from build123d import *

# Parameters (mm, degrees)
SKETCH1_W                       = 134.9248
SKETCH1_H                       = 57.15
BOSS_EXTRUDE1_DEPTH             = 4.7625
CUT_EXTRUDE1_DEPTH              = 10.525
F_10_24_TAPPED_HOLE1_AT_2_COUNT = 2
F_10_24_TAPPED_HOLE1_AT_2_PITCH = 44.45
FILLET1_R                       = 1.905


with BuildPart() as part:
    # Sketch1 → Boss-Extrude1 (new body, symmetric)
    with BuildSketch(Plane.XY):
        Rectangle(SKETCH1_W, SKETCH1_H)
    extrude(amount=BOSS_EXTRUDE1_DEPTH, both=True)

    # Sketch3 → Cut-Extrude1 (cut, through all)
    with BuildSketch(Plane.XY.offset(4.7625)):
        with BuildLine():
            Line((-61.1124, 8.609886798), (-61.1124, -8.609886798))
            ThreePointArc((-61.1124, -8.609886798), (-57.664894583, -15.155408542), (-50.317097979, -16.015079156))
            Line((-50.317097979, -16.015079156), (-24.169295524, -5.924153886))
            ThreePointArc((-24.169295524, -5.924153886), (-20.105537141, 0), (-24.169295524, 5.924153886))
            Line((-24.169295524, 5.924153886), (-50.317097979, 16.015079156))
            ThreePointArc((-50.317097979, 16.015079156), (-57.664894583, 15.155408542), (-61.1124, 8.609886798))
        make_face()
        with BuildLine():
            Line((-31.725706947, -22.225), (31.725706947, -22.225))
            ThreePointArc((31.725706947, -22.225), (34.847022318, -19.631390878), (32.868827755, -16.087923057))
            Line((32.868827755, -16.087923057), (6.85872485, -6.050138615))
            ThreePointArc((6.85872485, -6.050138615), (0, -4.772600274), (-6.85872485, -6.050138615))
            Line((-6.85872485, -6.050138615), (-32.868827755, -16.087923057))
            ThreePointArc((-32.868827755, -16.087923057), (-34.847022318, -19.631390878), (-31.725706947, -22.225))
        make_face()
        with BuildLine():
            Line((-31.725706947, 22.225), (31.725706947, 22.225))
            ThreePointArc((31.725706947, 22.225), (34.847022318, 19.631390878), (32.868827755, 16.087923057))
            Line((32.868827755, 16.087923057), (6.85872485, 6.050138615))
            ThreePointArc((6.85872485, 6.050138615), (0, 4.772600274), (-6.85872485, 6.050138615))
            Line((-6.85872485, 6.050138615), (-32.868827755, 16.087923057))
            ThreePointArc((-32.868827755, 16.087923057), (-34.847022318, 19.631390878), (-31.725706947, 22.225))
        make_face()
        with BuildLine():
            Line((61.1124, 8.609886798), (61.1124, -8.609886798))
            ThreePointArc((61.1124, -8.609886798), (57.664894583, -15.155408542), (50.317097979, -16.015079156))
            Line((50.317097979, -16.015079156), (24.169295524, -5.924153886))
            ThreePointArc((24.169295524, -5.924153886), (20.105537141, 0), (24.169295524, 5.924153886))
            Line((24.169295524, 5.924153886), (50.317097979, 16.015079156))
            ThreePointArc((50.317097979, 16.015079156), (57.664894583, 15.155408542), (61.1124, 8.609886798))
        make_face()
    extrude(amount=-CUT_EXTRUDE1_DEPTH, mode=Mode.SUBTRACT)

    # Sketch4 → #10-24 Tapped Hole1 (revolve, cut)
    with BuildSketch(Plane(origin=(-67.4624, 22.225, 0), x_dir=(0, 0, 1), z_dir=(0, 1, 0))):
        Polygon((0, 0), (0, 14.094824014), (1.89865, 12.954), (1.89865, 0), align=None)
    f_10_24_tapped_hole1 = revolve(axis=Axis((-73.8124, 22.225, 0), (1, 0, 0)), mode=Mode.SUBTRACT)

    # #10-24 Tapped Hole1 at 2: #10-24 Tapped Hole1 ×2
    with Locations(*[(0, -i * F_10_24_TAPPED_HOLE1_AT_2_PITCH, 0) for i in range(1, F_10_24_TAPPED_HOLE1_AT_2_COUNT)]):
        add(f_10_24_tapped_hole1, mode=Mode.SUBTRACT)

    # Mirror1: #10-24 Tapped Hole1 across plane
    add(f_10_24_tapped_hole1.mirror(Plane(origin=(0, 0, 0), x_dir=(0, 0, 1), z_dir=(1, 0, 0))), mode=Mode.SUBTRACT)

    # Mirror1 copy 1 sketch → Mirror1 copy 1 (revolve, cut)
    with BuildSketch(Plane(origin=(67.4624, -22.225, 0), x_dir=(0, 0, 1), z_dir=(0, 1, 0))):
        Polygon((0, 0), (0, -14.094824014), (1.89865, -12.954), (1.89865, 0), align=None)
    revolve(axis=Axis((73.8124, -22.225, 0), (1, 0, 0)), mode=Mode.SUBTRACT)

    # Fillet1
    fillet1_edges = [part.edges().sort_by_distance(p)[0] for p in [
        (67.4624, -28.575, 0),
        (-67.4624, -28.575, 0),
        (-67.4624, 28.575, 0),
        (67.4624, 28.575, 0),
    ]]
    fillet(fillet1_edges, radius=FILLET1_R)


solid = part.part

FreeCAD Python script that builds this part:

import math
import FreeCAD as App
import Part
import Sketcher
from FreeCAD import Vector
Q = App.Units.Quantity


def edges_at(feature, points):
    """Names of the edges that pass closest to the given points."""
    edges = feature.Shape.Edges
    near = lambda p: min(range(len(edges)), key=lambda i: edges[i].distToShape(Part.Vertex(*p))[0])
    return sorted({f"Edge{near(p) + 1}" for p in points})

doc = App.newDocument("Part")
body = doc.addObject("PartDesign::Body", "Body")

# Sketch on XY plane
sketch1 = body.newObject("Sketcher::SketchObject", "Sketch")
sketch1.AttachmentSupport = (doc.getObject("XY_Plane"), [""])
sketch1.MapMode = "FlatFace"
sketch1.addGeometry(Part.LineSegment(Vector(-67, 29, 0), Vector(-67, -29, 0)), False)
sketch1.addGeometry(Part.LineSegment(Vector(-67, -29, 0), Vector(67, -29, 0)), False)
sketch1.addGeometry(Part.LineSegment(Vector(67, -29, 0), Vector(67, 29, 0)), False)
sketch1.addGeometry(Part.LineSegment(Vector(67, 29, 0), Vector(-67, 29, 0)), False)
sketch1.addConstraint(Sketcher.Constraint("Coincident", 0, 2, 1, 1))
sketch1.addConstraint(Sketcher.Constraint("Coincident", 1, 2, 2, 1))
sketch1.addConstraint(Sketcher.Constraint("Coincident", 2, 2, 3, 1))
sketch1.addConstraint(Sketcher.Constraint("Coincident", 3, 2, 0, 1))
sketch1.addConstraint(Sketcher.Constraint("Vertical", 0))
sketch1.addConstraint(Sketcher.Constraint("Horizontal", 1))
sketch1.addConstraint(Sketcher.Constraint("Vertical", 2))
sketch1.addConstraint(Sketcher.Constraint("Horizontal", 3))
sketch1.addConstraint(Sketcher.Constraint("Symmetric", 0, 2, 2, 2, -1, 1))
sketch1.addConstraint(Sketcher.Constraint("DistanceY", 0, 2, 0, 1, Q("2.25 in")))
sketch1.addConstraint(Sketcher.Constraint("DistanceX", 1, 1, 1, 2, Q("5.312 in")))
pad1 = body.newObject("PartDesign::Pad", "Pad")
pad1.Profile = sketch1
pad1.Length = Q("0.375 in")
pad1.Midplane = True

# Sketch on XY plane
sketch2 = body.newObject("Sketcher::SketchObject", "Sketch001")
sketch2.AttachmentSupport = (doc.getObject("XY_Plane"), [""])
sketch2.MapMode = "FlatFace"
sketch2.AttachmentOffset = App.Placement(Vector(0, 0, 0.1875 * 25.4), App.Rotation())
sketch2.addGeometry(Part.LineSegment(Vector(-61.1, 8.6, 0), Vector(-61.1, -8.6, 0)), False)
sketch2.addGeometry(Part.ArcOfCircle(Part.Circle(Vector(-53.2, -8.6, 0), Vector(0, 0, 1), 7.9), math.radians(180), math.radians(291)), False)
sketch2.addGeometry(Part.LineSegment(Vector(-50.3, -16, 0), Vector(-24.2, -5.9, 0)), False)
sketch2.addGeometry(Part.ArcOfCircle(Part.Circle(Vector(-26.5, 0, 0), Vector(0, 0, 1), 6.3), math.radians(-69), math.radians(69)), False)
sketch2.addGeometry(Part.LineSegment(Vector(-24.2, 5.9, 0), Vector(-50.3, 16, 0)), False)
sketch2.addGeometry(Part.ArcOfCircle(Part.Circle(Vector(-53.2, 8.6, 0), Vector(0, 0, 1), 7.9), math.radians(69), math.radians(180)), False)
sketch2.addGeometry(Part.LineSegment(Vector(-31.7, -22.2, 0), Vector(31.7, -22.2, 0)), False)
sketch2.addGeometry(Part.ArcOfCircle(Part.Circle(Vector(31.7, -19.1, 0), Vector(0, 0, 1), 3.2), math.radians(-90), math.radians(69)), False)
sketch2.addGeometry(Part.LineSegment(Vector(32.9, -16.1, 0), Vector(6.9, -6.1, 0)), False)
sketch2.addGeometry(Part.ArcOfCircle(Part.Circle(Vector(0, -23.8, 0), Vector(0, 0, 1), 19), math.radians(69), math.radians(111)), False)
sketch2.addGeometry(Part.LineSegment(Vector(-6.9, -6.1, 0), Vector(-32.9, -16.1, 0)), False)
sketch2.addGeometry(Part.ArcOfCircle(Part.Circle(Vector(-31.7, -19.1, 0), Vector(0, 0, 1), 3.2), math.radians(111), math.radians(270)), False)
sketch2.addGeometry(Part.LineSegment(Vector(31.7, 22.2, 0), Vector(-31.7, 22.2, 0)), False)
sketch2.addGeometry(Part.ArcOfCircle(Part.Circle(Vector(-31.7, 19.1, 0), Vector(0, 0, 1), 3.2), math.radians(90), math.radians(249)), False)
sketch2.addGeometry(Part.LineSegment(Vector(-32.9, 16.1, 0), Vector(-6.9, 6.1, 0)), False)
sketch2.addGeometry(Part.ArcOfCircle(Part.Circle(Vector(0, 23.8, 0), Vector(0, 0, 1), 19), math.radians(-111), math.radians(-69)), False)
sketch2.addGeometry(Part.LineSegment(Vector(6.9, 6.1, 0), Vector(32.9, 16.1, 0)), False)
sketch2.addGeometry(Part.ArcOfCircle(Part.Circle(Vector(31.7, 19.1, 0), Vector(0, 0, 1), 3.2), math.radians(-69), math.radians(90)), False)
sketch2.addGeometry(Part.LineSegment(Vector(61.1, -8.6, 0), Vector(61.1, 8.6, 0)), False)
sketch2.addGeometry(Part.ArcOfCircle(Part.Circle(Vector(53.2, 8.6, 0), Vector(0, 0, 1), 7.9), math.radians(0), math.radians(111)), False)
sketch2.addGeometry(Part.LineSegment(Vector(50.3, 16, 0), Vector(24.2, 5.9, 0)), False)
sketch2.addGeometry(Part.ArcOfCircle(Part.Circle(Vector(26.5, 0, 0), Vector(0, 0, 1), 6.3), math.radians(111), math.radians(249)), False)
sketch2.addGeometry(Part.LineSegment(Vector(24.2, -5.9, 0), Vector(50.3, -16, 0)), False)
sketch2.addGeometry(Part.ArcOfCircle(Part.Circle(Vector(53.2, -8.6, 0), Vector(0, 0, 1), 7.9), math.radians(-111), math.radians(0)), False)
sketch2.addConstraint(Sketcher.Constraint("Tangent", 0, 2, 1, 1))
sketch2.addConstraint(Sketcher.Constraint("Tangent", 1, 2, 2, 1))
sketch2.addConstraint(Sketcher.Constraint("Tangent", 2, 2, 3, 1))
sketch2.addConstraint(Sketcher.Constraint("Tangent", 3, 2, 4, 1))
sketch2.addConstraint(Sketcher.Constraint("Tangent", 4, 2, 5, 1))
sketch2.addConstraint(Sketcher.Constraint("Tangent", 5, 2, 0, 1))
sketch2.addConstraint(Sketcher.Constraint("Tangent", 6, 2, 7, 1))
sketch2.addConstraint(Sketcher.Constraint("Tangent", 7, 2, 8, 1))
sketch2.addConstraint(Sketcher.Constraint("Tangent", 8, 2, 9, 1))
sketch2.addConstraint(Sketcher.Constraint("Tangent", 9, 2, 10, 1))
sketch2.addConstraint(Sketcher.Constraint("Tangent", 10, 2, 11, 1))
sketch2.addConstraint(Sketcher.Constraint("Tangent", 11, 2, 6, 1))
sketch2.addConstraint(Sketcher.Constraint("Tangent", 12, 2, 13, 1))
sketch2.addConstraint(Sketcher.Constraint("Tangent", 13, 2, 14, 1))
sketch2.addConstraint(Sketcher.Constraint("Tangent", 14, 2, 15, 1))
sketch2.addConstraint(Sketcher.Constraint("Tangent", 15, 2, 16, 1))
sketch2.addConstraint(Sketcher.Constraint("Tangent", 16, 2, 17, 1))
sketch2.addConstraint(Sketcher.Constraint("Tangent", 17, 2, 12, 1))
sketch2.addConstraint(Sketcher.Constraint("Tangent", 18, 2, 19, 1))
sketch2.addConstraint(Sketcher.Constraint("Tangent", 19, 2, 20, 1))
sketch2.addConstraint(Sketcher.Constraint("Tangent", 20, 2, 21, 1))
sketch2.addConstraint(Sketcher.Constraint("Tangent", 21, 2, 22, 1))
sketch2.addConstraint(Sketcher.Constraint("Tangent", 22, 2, 23, 1))
sketch2.addConstraint(Sketcher.Constraint("Tangent", 23, 2, 18, 1))
sketch2.addConstraint(Sketcher.Constraint("Vertical", 0))
sketch2.addConstraint(Sketcher.Constraint("Horizontal", 6))
sketch2.addConstraint(Sketcher.Constraint("Horizontal", 12))
sketch2.addConstraint(Sketcher.Constraint("Vertical", 18))
sketch2.addConstraint(Sketcher.Constraint("Equal", 1, 5))
sketch2.addConstraint(Sketcher.Constraint("Equal", 7, 11))
sketch2.addConstraint(Sketcher.Constraint("Equal", 11, 13))
sketch2.addConstraint(Sketcher.Constraint("Equal", 9, 15))
sketch2.addConstraint(Sketcher.Constraint("Equal", 13, 17))
sketch2.addConstraint(Sketcher.Constraint("Equal", 5, 19))
sketch2.addConstraint(Sketcher.Constraint("Equal", 3, 21))
sketch2.addConstraint(Sketcher.Constraint("Equal", 19, 23))
sketch2.addConstraint(Sketcher.Constraint("Symmetric", 7, 3, 13, 3, -1, 1))
sketch2.addConstraint(Sketcher.Constraint("Symmetric", 9, 3, 15, 3, -1, 1))
sketch2.addConstraint(Sketcher.Constraint("Symmetric", 1, 3, 19, 3, -1, 1))
sketch2.addConstraint(Sketcher.Constraint("Symmetric", 3, 3, 21, 3, -1, 1))
sketch2.addConstraint(Sketcher.Constraint("Symmetric", 8, 2, 9, 2, -2))
sketch2.addConstraint(Sketcher.Constraint("Symmetric", 4, 2, 19, 2, -2))
sketch2.addConstraint(Sketcher.Constraint("Parallel", 4, 8))
sketch2.addConstraint(Sketcher.Constraint("Parallel", 10, 16))
sketch2.addConstraint(Sketcher.Constraint("Parallel", 14, 22))
sketch2.addConstraint(Sketcher.Constraint("Radius", 3, Q("0.25 in")))
sketch2.addConstraint(Sketcher.Constraint("Radius", 9, Q("0.75 in")))
sketch2.addConstraint(Sketcher.Constraint("Radius", 1, Q("0.3125 in")))
sketch2.addConstraint(Sketcher.Constraint("Radius", 7, Q("0.125 in")))
sketch2.addConstraint(Sketcher.Constraint("DistanceY", 11, 3, 13, 3, Q("1.5 in")))
sketch2.addConstraint(Sketcher.Constraint("DistanceX", 0, 2, -1, 1, Q("2.406 in")))
sketch2.addConstraint(Sketcher.Constraint("DistanceX", 3, 3, 7, 3, Q("2.2906002 in")))
sketch2.addConstraint(Sketcher.Constraint("DistanceY", 9, 3, -1, 1, 23.8226))
sketch2.addConstraint(Sketcher.Constraint("DistanceX", 6, 1, 6, 2, 63.451414))
pocket1 = body.newObject("PartDesign::Pocket", "Pocket")
pocket1.Profile = sketch2
pocket1.Type = "ThroughAll"

# Sketch on XZ plane
sketch3 = body.newObject("Sketcher::SketchObject", "Sketch002")
sketch3.AttachmentSupport = (doc.getObject("XZ_Plane"), [""])
sketch3.MapMode = "FlatFace"
sketch3.AttachmentOffset = App.Placement(Vector(0, 0, -0.875 * 25.4), App.Rotation())
sketch3.addGeometry(Part.LineSegment(Vector(-53.4, 0, 0), Vector(-67.5, 0, 0)), False)
sketch3.addGeometry(Part.LineSegment(Vector(-67.5, 0, 0), Vector(-67.5, 1.9, 0)), False)
sketch3.addGeometry(Part.LineSegment(Vector(-67.5, 1.9, 0), Vector(-54.5, 1.9, 0)), False)
sketch3.addGeometry(Part.LineSegment(Vector(-54.5, 1.9, 0), Vector(-53.4, 0, 0)), False)
sketch3.addConstraint(Sketcher.Constraint("Coincident", 0, 2, 1, 1))
sketch3.addConstraint(Sketcher.Constraint("Coincident", 1, 2, 2, 1))
sketch3.addConstraint(Sketcher.Constraint("Coincident", 2, 2, 3, 1))
sketch3.addConstraint(Sketcher.Constraint("Coincident", 3, 2, 0, 1))
sketch3.addConstraint(Sketcher.Constraint("Horizontal", 0))
sketch3.addConstraint(Sketcher.Constraint("Vertical", 1))
sketch3.addConstraint(Sketcher.Constraint("Horizontal", 2))
sketch3.addConstraint(Sketcher.Constraint("PointOnObject", 0, 2, -1))
sketch3.addConstraint(Sketcher.Constraint("Angle", 3, Q("-59 deg")))
sketch3.addConstraint(Sketcher.Constraint("DistanceX", 2, 1, 2, 2, Q("0.51 in")))
sketch3.addConstraint(Sketcher.Constraint("DistanceX", 0, 2, -1, 1, Q("2.656 in")))
sketch3.addConstraint(Sketcher.Constraint("DistanceY", 1, 1, 1, 2, 1.89865))
groove = body.newObject("PartDesign::Groove", "Groove")
groove.Profile = sketch3
groove.ReferenceAxis = (sketch3, ["H_Axis"])
groove.Angle = 360
doc.recompute()

linearpattern = body.newObject("PartDesign::LinearPattern", "LinearPattern")
linearpattern.Originals = [groove]
linearpattern.Direction = (doc.getObject("Y_Axis"), [""])
linearpattern.Mode = "offset"
linearpattern.Offset = Q("1.75 in")
linearpattern.Occurrences = 2
linearpattern.Reversed = True
body.Tip = linearpattern
doc.recompute()

mirrored = body.newObject("PartDesign::Mirrored", "Mirrored")
mirrored.Originals = [groove]
mirrored.MirrorPlane = (doc.getObject("YZ_Plane"), [""])
body.Tip = mirrored

# Sketch on XZ plane
sketch4 = body.newObject("Sketcher::SketchObject", "Sketch003")
sketch4.AttachmentSupport = (doc.getObject("XZ_Plane"), [""])
sketch4.MapMode = "FlatFace"
sketch4.AttachmentOffset = App.Placement(Vector(0, 0, 0.875 * 25.4), App.Rotation())
sketch4.addGeometry(Part.LineSegment(Vector(67.5, 0, 0), Vector(53.4, 0, 0)), False)
sketch4.addGeometry(Part.LineSegment(Vector(53.4, 0, 0), Vector(54.5, 1.9, 0)), False)
sketch4.addGeometry(Part.LineSegment(Vector(54.5, 1.9, 0), Vector(67.5, 1.9, 0)), False)
sketch4.addGeometry(Part.LineSegment(Vector(67.5, 1.9, 0), Vector(67.5, 0, 0)), False)
sketch4.addConstraint(Sketcher.Constraint("Coincident", 0, 2, 1, 1))
sketch4.addConstraint(Sketcher.Constraint("Coincident", 1, 2, 2, 1))
sketch4.addConstraint(Sketcher.Constraint("Coincident", 2, 2, 3, 1))
sketch4.addConstraint(Sketcher.Constraint("Coincident", 3, 2, 0, 1))
sketch4.addConstraint(Sketcher.Constraint("Horizontal", 0))
sketch4.addConstraint(Sketcher.Constraint("Horizontal", 2))
sketch4.addConstraint(Sketcher.Constraint("Vertical", 3))
sketch4.addConstraint(Sketcher.Constraint("PointOnObject", 0, 2, -1))
sketch4.addConstraint(Sketcher.Constraint("Angle", 1, Q("59 deg")))
sketch4.addConstraint(Sketcher.Constraint("DistanceX", 2, 1, 2, 2, Q("0.51 in")))
sketch4.addConstraint(Sketcher.Constraint("DistanceX", -1, 1, 1, 2, Q("2.146 in")))
sketch4.addConstraint(Sketcher.Constraint("DistanceY", 3, 2, 3, 1, 1.89865))
groove2 = body.newObject("PartDesign::Groove", "Groove001")
groove2.Profile = sketch4
groove2.ReferenceAxis = (sketch4, ["H_Axis"])
groove2.Angle = 360
doc.recompute()

fillet = body.newObject("PartDesign::Fillet", "Fillet")
fillet.Base = (groove2, edges_at(groove2, [
    (67.462, -28.575, 0),
    (-67.462, -28.575, 0),
    (-67.462, 28.575, 0),
    (67.462, 28.575, 0),
]))
fillet.Radius = Q("0.075 in")

doc.recompute()
